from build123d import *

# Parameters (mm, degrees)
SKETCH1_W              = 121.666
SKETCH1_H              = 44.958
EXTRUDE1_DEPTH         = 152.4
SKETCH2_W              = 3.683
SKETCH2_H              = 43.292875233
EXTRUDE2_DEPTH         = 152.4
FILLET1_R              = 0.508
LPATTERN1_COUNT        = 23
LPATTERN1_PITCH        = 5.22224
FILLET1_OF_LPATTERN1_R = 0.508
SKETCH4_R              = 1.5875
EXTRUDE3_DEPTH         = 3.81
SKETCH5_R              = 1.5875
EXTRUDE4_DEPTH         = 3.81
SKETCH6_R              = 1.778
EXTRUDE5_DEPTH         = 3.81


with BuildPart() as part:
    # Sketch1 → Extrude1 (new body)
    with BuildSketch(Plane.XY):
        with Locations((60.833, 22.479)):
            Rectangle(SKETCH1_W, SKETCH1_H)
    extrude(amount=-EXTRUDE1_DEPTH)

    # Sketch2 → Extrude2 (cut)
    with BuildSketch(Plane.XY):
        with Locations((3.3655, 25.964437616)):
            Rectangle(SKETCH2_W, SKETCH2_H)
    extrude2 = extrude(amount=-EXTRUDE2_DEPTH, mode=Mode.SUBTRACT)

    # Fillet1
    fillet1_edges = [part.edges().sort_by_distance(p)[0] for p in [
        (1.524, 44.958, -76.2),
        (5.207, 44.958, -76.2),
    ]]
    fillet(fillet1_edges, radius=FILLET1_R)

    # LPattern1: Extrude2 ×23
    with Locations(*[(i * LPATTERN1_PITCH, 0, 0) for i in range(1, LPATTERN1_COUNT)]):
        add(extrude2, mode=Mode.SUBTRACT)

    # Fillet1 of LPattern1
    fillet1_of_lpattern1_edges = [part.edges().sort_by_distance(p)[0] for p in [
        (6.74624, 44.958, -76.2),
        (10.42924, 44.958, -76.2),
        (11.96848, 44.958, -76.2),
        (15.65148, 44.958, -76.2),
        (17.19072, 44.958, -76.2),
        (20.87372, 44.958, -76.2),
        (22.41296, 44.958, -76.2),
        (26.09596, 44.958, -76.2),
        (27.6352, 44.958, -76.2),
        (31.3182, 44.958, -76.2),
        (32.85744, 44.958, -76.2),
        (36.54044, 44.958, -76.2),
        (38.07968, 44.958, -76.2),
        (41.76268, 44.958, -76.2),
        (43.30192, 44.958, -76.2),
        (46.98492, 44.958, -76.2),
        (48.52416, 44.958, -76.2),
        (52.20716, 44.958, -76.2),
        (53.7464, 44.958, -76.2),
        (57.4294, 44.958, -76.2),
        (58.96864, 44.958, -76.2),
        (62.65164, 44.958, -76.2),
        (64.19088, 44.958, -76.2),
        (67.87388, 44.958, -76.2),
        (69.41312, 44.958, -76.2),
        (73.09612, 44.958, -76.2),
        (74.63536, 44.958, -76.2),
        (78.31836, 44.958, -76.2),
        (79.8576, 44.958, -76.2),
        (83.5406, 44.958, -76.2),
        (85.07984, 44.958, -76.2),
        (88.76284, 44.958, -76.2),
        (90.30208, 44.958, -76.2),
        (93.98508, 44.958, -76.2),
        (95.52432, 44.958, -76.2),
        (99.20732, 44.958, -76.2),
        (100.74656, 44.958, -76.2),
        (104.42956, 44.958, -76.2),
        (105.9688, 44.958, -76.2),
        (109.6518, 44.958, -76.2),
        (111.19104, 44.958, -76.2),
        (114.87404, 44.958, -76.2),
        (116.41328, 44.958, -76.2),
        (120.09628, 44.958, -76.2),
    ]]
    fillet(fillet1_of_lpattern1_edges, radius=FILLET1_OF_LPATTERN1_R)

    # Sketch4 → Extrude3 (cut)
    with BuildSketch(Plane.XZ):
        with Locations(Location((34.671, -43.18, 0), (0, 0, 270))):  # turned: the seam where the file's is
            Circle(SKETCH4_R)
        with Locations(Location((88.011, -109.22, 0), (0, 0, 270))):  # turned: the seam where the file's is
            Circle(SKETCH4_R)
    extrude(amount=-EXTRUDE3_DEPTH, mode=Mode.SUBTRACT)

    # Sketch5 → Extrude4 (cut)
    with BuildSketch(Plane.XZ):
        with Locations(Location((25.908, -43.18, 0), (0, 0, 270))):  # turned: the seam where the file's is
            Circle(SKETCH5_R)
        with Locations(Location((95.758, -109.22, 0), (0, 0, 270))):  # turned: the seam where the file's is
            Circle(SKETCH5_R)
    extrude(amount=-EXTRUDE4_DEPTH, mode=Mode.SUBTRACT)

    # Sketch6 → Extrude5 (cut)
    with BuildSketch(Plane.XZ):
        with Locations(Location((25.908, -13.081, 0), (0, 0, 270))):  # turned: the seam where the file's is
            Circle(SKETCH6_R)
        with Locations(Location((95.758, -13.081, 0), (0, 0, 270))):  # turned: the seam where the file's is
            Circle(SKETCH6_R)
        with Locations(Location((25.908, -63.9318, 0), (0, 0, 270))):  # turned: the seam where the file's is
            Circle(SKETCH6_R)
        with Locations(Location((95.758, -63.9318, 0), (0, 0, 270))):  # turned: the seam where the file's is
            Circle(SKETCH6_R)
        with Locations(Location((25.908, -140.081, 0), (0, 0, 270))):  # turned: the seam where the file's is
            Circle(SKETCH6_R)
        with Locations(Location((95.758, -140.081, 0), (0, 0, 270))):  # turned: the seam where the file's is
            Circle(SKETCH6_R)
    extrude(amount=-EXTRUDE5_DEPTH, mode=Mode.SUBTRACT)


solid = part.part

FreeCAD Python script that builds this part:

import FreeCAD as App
import Part
import Sketcher

V = App.Vector
Q = App.Units.Quantity


def edges_at(feature, points):
    """Names of the edges that pass closest to the given points."""
    edges = feature.Shape.Edges
    near = lambda p: min(range(len(edges)), key=lambda i: edges[i].distToShape(Part.Vertex(*p))[0])
    return sorted({f"Edge{near(p) + 1}" for p in points})

doc = App.newDocument("Part")
body = doc.addObject("PartDesign::Body", "Body")

sketch1 = body.newObject("Sketcher::SketchObject", "Sketch")
sketch1.AttachmentSupport = (doc.getObject("XY_Plane"), [""])
sketch1.MapMode = "FlatFace"
sketch1.addGeometry([
    Part.LineSegment(V(0, 44.958, 0), V(0, 0, 0)),
    Part.LineSegment(V(0, 0, 0), V(121.666, 0, 0)),
    Part.LineSegment(V(121.666, 0, 0), V(121.666, 44.958, 0)),
    Part.LineSegment(V(121.666, 44.958, 0), V(0, 44.958, 0)),
], False)
sketch1.addConstraint([
    Sketcher.Constraint("Coincident", 0, 2, 1, 1),
    Sketcher.Constraint("Coincident", 1, 2, 2, 1),
    Sketcher.Constraint("Coincident", 2, 2, 3, 1),
    Sketcher.Constraint("Coincident", 3, 2, 0, 1),
    Sketcher.Constraint("Vertical", 0),
    Sketcher.Constraint("Horizontal", 1),
    Sketcher.Constraint("Vertical", 2),
    Sketcher.Constraint("Horizontal", 3),
    Sketcher.Constraint("Coincident", 0, 2, -1, 1),
    Sketcher.Constraint("DistanceX", 1, 1, 1, 2, Q("4.79 in")),
    Sketcher.Constraint("DistanceY", 0, 2, 0, 1, Q("1.77 in")),
])
pad1 = body.newObject("PartDesign::Pad", "Pad")
pad1.Profile = sketch1
pad1.Length = Q("6 in")
pad1.Reversed = True

sketch2 = body.newObject("Sketcher::SketchObject", "Sketch001")
sketch2.AttachmentSupport = (doc.getObject("XY_Plane"), [""])
sketch2.MapMode = "FlatFace"
sketch2.addGeometry([
    Part.LineSegment(V(1.524, 47.610875, 0), V(1.524, 4.318, 0)),
    Part.LineSegment(V(1.524, 4.318, 0), V(5.207, 4.318, 0)),
    Part.LineSegment(V(5.207, 4.318, 0), V(5.207, 47.610875, 0)),
    Part.LineSegment(V(5.207, 47.610875, 0), V(1.524, 47.610875, 0)),
], False)
sketch2.addConstraint([
    Sketcher.Constraint("Coincident", 0, 2, 1, 1),
    Sketcher.Constraint("Coincident", 1, 2, 2, 1),
    Sketcher.Constraint("Coincident", 2, 2, 3, 1),
    Sketcher.Constraint("Coincident", 3, 2, 0, 1),
    Sketcher.Constraint("Vertical", 0),
    Sketcher.Constraint("Horizontal", 1),
    Sketcher.Constraint("Vertical", 2),
    Sketcher.Constraint("Horizontal", 3),
    Sketcher.Constraint("DistanceX", 1, 1, 1, 2, Q("0.145 in")),
    Sketcher.Constraint("DistanceX", -1, 1, 0, 2, Q("0.06 in")),
    Sketcher.Constraint("DistanceY", -1, 1, 0, 2, Q("0.17 in")),
    Sketcher.Constraint("DistanceY", 0, 2, 0, 1, Q("43.292875 mm")),
])
pocket1 = body.newObject("PartDesign::Pocket", "Pocket")
pocket1.Profile = sketch2
pocket1.Length = Q("6 in")
doc.recompute()

fillet = body.newObject("PartDesign::Fillet", "Fillet")
fillet.Base = (pocket1, edges_at(pocket1, [(1.524, 44.958, -76.2), (5.207, 44.958, -76.2)]))
fillet.Radius = Q("0.02 in")
doc.recompute()

linearpattern = body.newObject("PartDesign::LinearPattern", "LinearPattern")
linearpattern.Originals = [pocket1]
linearpattern.Direction = (doc.getObject("X_Axis"), [""])
linearpattern.Mode = "offset"
linearpattern.Offset = Q("0.2056 in")
linearpattern.Occurrences = 23
body.Tip = linearpattern
doc.recompute()

fillet2 = body.newObject("PartDesign::Fillet", "Fillet001")
fillet2.Base = (linearpattern, edges_at(linearpattern, [
    (6.746, 44.958, -76.2),
    (10.429, 44.958, -76.2),
    (11.968, 44.958, -76.2),
    (15.651, 44.958, -76.2),
    (17.191, 44.958, -76.2),
    (20.874, 44.958, -76.2),
    (22.413, 44.958, -76.2),
    (26.096, 44.958, -76.2),
    (27.635, 44.958, -76.2),
    (31.318, 44.958, -76.2),
    (32.857, 44.958, -76.2),
    (36.54, 44.958, -76.2),
    (38.08, 44.958, -76.2),
    (41.763, 44.958, -76.2),
    (43.302, 44.958, -76.2),
    (46.985, 44.958, -76.2),
    (48.524, 44.958, -76.2),
    (52.207, 44.958, -76.2),
    (53.746, 44.958, -76.2),
    (57.429, 44.958, -76.2),
    (58.969, 44.958, -76.2),
    (62.652, 44.958, -76.2),
    (64.191, 44.958, -76.2),
    (67.874, 44.958, -76.2),
    (69.413, 44.958, -76.2),
    (73.096, 44.958, -76.2),
    (74.635, 44.958, -76.2),
    (78.318, 44.958, -76.2),
    (79.858, 44.958, -76.2),
    (83.541, 44.958, -76.2),
    (85.08, 44.958, -76.2),
    (88.763, 44.958, -76.2),
    (90.302, 44.958, -76.2),
    (93.985, 44.958, -76.2),
    (95.524, 44.958, -76.2),
    (99.207, 44.958, -76.2),
    (100.747, 44.958, -76.2),
    (104.43, 44.958, -76.2),
    (105.969, 44.958, -76.2),
    (109.652, 44.958, -76.2),
    (111.191, 44.958, -76.2),
    (114.874, 44.958, -76.2),
    (116.413, 44.958, -76.2),
    (120.096, 44.958, -76.2),
]))
fillet2.Radius = Q("0.02 in")

sketch3 = body.newObject("Sketcher::SketchObject", "Sketch002")
sketch3.AttachmentSupport = (doc.getObject("XZ_Plane"), [""])
sketch3.MapMode = "FlatFace"
sketch3.addGeometry([
    Part.Circle(V(34.671, -43.18, 0), V(0, 0, 1), 1.5875),
    Part.Circle(V(88.011, -109.22, 0), V(0, 0, 1), 1.5875),
], False)
sketch3.addConstraint([
    Sketcher.Constraint("Equal", 0, 1),
    Sketcher.Constraint("Diameter", 0, Q("0.125 in")),
    Sketcher.Constraint("DistanceY", 0, 3, -1, 1, Q("1.7 in")),
    Sketcher.Constraint("DistanceY", 1, 3, -1, 1, Q("4.3 in")),
    Sketcher.Constraint("DistanceX", 0, 3, 1, 3, Q("2.1 in")),
    Sketcher.Constraint("DistanceX", -1, 1, 0, 3, Q("1.365 in")),
])
pocket2 = body.newObject("PartDesign::Pocket", "Pocket001")
pocket2.Profile = sketch3
pocket2.Length = Q("0.15 in")

sketch4 = body.newObject("Sketcher::SketchObject", "Sketch003")
sketch4.AttachmentSupport = (doc.getObject("XZ_Plane"), [""])
sketch4.MapMode = "FlatFace"
sketch4.addGeometry([
    Part.Circle(V(25.908, -43.18, 0), V(0, 0, 1), 1.5875),
    Part.Circle(V(95.758, -109.22, 0), V(0, 0, 1), 1.5875),
], False)
sketch4.addConstraint([
    Sketcher.Constraint("Equal", 0, 1),
    Sketcher.Constraint("Diameter", 0, Q("0.125 in")),
    Sketcher.Constraint("DistanceY", 0, 3, -1, 1, Q("1.7 in")),
    Sketcher.Constraint("DistanceY", 1, 3, -1, 1, Q("4.3 in")),
    Sketcher.Constraint("DistanceX", -1, 1, 0, 3, Q("1.02 in")),
    Sketcher.Constraint("DistanceX", -1, 1, 1, 3, Q("3.77 in")),
])
pocket3 = body.newObject("PartDesign::Pocket", "Pocket002")
pocket3.Profile = sketch4
pocket3.Length = Q("0.15 in")

sketch5 = body.newObject("Sketcher::SketchObject", "Sketch004")
sketch5.AttachmentSupport = (doc.getObject("XZ_Plane"), [""])
sketch5.MapMode = "FlatFace"
sketch5.addGeometry([
    Part.Circle(V(25.908, -13.081, 0), V(0, 0, 1), 1.778),
    Part.Circle(V(95.758, -13.081, 0), V(0, 0, 1), 1.778),
    Part.Circle(V(25.908, -63.9318, 0), V(0, 0, 1), 1.778),
    Part.Circle(V(95.758, -63.9318, 0), V(0, 0, 1), 1.778),
    Part.Circle(V(25.908, -140.081, 0), V(0, 0, 1), 1.778),
    Part.Circle(V(95.758, -140.081, 0), V(0, 0, 1), 1.778),
], False)
sketch5.addConstraint([
    Sketcher.Constraint("Equal", 0, 1),
    Sketcher.Constraint("Equal", 1, 2),
    Sketcher.Constraint("Equal", 2, 3),
    Sketcher.Constraint("Equal", 3, 4),
    Sketcher.Constraint("Equal", 4, 5),
    Sketcher.Constraint("Horizontal", 0, 3, 1, 3),
    Sketcher.Constraint("Horizontal", 2, 3, 3, 3),
    Sketcher.Constraint("Horizontal", 4, 3, 5, 3),
    Sketcher.Constraint("Vertical", 0, 3, 2, 3),
    Sketcher.Constraint("Vertical", 1, 3, 3, 3),
    Sketcher.Constraint("Vertical", 2, 3, 4, 3),
    Sketcher.Constraint("Vertical", 3, 3, 5, 3),
    Sketcher.Constraint("Diameter", 0, Q("0.14 in")),
    Sketcher.Constraint("DistanceY", 4, 3, 0, 3, Q("5 in")),
    Sketcher.Constraint("DistanceX", -1, 1, 0, 3, Q("1.02 in")),
    Sketcher.Constraint("DistanceX", -1, 1, 1, 3, Q("3.77 in")),
    Sketcher.Constraint("DistanceY", 0, 3, -1, 1, Q("0.515 in")),
    Sketcher.Constraint("DistanceY", 2, 3, -1, 1, Q("2.517 in")),
])
pocket4 = body.newObject("PartDesign::Pocket", "Pocket003")
pocket4.Profile = sketch5
pocket4.Length = Q("0.15 in")

doc.recompute()
